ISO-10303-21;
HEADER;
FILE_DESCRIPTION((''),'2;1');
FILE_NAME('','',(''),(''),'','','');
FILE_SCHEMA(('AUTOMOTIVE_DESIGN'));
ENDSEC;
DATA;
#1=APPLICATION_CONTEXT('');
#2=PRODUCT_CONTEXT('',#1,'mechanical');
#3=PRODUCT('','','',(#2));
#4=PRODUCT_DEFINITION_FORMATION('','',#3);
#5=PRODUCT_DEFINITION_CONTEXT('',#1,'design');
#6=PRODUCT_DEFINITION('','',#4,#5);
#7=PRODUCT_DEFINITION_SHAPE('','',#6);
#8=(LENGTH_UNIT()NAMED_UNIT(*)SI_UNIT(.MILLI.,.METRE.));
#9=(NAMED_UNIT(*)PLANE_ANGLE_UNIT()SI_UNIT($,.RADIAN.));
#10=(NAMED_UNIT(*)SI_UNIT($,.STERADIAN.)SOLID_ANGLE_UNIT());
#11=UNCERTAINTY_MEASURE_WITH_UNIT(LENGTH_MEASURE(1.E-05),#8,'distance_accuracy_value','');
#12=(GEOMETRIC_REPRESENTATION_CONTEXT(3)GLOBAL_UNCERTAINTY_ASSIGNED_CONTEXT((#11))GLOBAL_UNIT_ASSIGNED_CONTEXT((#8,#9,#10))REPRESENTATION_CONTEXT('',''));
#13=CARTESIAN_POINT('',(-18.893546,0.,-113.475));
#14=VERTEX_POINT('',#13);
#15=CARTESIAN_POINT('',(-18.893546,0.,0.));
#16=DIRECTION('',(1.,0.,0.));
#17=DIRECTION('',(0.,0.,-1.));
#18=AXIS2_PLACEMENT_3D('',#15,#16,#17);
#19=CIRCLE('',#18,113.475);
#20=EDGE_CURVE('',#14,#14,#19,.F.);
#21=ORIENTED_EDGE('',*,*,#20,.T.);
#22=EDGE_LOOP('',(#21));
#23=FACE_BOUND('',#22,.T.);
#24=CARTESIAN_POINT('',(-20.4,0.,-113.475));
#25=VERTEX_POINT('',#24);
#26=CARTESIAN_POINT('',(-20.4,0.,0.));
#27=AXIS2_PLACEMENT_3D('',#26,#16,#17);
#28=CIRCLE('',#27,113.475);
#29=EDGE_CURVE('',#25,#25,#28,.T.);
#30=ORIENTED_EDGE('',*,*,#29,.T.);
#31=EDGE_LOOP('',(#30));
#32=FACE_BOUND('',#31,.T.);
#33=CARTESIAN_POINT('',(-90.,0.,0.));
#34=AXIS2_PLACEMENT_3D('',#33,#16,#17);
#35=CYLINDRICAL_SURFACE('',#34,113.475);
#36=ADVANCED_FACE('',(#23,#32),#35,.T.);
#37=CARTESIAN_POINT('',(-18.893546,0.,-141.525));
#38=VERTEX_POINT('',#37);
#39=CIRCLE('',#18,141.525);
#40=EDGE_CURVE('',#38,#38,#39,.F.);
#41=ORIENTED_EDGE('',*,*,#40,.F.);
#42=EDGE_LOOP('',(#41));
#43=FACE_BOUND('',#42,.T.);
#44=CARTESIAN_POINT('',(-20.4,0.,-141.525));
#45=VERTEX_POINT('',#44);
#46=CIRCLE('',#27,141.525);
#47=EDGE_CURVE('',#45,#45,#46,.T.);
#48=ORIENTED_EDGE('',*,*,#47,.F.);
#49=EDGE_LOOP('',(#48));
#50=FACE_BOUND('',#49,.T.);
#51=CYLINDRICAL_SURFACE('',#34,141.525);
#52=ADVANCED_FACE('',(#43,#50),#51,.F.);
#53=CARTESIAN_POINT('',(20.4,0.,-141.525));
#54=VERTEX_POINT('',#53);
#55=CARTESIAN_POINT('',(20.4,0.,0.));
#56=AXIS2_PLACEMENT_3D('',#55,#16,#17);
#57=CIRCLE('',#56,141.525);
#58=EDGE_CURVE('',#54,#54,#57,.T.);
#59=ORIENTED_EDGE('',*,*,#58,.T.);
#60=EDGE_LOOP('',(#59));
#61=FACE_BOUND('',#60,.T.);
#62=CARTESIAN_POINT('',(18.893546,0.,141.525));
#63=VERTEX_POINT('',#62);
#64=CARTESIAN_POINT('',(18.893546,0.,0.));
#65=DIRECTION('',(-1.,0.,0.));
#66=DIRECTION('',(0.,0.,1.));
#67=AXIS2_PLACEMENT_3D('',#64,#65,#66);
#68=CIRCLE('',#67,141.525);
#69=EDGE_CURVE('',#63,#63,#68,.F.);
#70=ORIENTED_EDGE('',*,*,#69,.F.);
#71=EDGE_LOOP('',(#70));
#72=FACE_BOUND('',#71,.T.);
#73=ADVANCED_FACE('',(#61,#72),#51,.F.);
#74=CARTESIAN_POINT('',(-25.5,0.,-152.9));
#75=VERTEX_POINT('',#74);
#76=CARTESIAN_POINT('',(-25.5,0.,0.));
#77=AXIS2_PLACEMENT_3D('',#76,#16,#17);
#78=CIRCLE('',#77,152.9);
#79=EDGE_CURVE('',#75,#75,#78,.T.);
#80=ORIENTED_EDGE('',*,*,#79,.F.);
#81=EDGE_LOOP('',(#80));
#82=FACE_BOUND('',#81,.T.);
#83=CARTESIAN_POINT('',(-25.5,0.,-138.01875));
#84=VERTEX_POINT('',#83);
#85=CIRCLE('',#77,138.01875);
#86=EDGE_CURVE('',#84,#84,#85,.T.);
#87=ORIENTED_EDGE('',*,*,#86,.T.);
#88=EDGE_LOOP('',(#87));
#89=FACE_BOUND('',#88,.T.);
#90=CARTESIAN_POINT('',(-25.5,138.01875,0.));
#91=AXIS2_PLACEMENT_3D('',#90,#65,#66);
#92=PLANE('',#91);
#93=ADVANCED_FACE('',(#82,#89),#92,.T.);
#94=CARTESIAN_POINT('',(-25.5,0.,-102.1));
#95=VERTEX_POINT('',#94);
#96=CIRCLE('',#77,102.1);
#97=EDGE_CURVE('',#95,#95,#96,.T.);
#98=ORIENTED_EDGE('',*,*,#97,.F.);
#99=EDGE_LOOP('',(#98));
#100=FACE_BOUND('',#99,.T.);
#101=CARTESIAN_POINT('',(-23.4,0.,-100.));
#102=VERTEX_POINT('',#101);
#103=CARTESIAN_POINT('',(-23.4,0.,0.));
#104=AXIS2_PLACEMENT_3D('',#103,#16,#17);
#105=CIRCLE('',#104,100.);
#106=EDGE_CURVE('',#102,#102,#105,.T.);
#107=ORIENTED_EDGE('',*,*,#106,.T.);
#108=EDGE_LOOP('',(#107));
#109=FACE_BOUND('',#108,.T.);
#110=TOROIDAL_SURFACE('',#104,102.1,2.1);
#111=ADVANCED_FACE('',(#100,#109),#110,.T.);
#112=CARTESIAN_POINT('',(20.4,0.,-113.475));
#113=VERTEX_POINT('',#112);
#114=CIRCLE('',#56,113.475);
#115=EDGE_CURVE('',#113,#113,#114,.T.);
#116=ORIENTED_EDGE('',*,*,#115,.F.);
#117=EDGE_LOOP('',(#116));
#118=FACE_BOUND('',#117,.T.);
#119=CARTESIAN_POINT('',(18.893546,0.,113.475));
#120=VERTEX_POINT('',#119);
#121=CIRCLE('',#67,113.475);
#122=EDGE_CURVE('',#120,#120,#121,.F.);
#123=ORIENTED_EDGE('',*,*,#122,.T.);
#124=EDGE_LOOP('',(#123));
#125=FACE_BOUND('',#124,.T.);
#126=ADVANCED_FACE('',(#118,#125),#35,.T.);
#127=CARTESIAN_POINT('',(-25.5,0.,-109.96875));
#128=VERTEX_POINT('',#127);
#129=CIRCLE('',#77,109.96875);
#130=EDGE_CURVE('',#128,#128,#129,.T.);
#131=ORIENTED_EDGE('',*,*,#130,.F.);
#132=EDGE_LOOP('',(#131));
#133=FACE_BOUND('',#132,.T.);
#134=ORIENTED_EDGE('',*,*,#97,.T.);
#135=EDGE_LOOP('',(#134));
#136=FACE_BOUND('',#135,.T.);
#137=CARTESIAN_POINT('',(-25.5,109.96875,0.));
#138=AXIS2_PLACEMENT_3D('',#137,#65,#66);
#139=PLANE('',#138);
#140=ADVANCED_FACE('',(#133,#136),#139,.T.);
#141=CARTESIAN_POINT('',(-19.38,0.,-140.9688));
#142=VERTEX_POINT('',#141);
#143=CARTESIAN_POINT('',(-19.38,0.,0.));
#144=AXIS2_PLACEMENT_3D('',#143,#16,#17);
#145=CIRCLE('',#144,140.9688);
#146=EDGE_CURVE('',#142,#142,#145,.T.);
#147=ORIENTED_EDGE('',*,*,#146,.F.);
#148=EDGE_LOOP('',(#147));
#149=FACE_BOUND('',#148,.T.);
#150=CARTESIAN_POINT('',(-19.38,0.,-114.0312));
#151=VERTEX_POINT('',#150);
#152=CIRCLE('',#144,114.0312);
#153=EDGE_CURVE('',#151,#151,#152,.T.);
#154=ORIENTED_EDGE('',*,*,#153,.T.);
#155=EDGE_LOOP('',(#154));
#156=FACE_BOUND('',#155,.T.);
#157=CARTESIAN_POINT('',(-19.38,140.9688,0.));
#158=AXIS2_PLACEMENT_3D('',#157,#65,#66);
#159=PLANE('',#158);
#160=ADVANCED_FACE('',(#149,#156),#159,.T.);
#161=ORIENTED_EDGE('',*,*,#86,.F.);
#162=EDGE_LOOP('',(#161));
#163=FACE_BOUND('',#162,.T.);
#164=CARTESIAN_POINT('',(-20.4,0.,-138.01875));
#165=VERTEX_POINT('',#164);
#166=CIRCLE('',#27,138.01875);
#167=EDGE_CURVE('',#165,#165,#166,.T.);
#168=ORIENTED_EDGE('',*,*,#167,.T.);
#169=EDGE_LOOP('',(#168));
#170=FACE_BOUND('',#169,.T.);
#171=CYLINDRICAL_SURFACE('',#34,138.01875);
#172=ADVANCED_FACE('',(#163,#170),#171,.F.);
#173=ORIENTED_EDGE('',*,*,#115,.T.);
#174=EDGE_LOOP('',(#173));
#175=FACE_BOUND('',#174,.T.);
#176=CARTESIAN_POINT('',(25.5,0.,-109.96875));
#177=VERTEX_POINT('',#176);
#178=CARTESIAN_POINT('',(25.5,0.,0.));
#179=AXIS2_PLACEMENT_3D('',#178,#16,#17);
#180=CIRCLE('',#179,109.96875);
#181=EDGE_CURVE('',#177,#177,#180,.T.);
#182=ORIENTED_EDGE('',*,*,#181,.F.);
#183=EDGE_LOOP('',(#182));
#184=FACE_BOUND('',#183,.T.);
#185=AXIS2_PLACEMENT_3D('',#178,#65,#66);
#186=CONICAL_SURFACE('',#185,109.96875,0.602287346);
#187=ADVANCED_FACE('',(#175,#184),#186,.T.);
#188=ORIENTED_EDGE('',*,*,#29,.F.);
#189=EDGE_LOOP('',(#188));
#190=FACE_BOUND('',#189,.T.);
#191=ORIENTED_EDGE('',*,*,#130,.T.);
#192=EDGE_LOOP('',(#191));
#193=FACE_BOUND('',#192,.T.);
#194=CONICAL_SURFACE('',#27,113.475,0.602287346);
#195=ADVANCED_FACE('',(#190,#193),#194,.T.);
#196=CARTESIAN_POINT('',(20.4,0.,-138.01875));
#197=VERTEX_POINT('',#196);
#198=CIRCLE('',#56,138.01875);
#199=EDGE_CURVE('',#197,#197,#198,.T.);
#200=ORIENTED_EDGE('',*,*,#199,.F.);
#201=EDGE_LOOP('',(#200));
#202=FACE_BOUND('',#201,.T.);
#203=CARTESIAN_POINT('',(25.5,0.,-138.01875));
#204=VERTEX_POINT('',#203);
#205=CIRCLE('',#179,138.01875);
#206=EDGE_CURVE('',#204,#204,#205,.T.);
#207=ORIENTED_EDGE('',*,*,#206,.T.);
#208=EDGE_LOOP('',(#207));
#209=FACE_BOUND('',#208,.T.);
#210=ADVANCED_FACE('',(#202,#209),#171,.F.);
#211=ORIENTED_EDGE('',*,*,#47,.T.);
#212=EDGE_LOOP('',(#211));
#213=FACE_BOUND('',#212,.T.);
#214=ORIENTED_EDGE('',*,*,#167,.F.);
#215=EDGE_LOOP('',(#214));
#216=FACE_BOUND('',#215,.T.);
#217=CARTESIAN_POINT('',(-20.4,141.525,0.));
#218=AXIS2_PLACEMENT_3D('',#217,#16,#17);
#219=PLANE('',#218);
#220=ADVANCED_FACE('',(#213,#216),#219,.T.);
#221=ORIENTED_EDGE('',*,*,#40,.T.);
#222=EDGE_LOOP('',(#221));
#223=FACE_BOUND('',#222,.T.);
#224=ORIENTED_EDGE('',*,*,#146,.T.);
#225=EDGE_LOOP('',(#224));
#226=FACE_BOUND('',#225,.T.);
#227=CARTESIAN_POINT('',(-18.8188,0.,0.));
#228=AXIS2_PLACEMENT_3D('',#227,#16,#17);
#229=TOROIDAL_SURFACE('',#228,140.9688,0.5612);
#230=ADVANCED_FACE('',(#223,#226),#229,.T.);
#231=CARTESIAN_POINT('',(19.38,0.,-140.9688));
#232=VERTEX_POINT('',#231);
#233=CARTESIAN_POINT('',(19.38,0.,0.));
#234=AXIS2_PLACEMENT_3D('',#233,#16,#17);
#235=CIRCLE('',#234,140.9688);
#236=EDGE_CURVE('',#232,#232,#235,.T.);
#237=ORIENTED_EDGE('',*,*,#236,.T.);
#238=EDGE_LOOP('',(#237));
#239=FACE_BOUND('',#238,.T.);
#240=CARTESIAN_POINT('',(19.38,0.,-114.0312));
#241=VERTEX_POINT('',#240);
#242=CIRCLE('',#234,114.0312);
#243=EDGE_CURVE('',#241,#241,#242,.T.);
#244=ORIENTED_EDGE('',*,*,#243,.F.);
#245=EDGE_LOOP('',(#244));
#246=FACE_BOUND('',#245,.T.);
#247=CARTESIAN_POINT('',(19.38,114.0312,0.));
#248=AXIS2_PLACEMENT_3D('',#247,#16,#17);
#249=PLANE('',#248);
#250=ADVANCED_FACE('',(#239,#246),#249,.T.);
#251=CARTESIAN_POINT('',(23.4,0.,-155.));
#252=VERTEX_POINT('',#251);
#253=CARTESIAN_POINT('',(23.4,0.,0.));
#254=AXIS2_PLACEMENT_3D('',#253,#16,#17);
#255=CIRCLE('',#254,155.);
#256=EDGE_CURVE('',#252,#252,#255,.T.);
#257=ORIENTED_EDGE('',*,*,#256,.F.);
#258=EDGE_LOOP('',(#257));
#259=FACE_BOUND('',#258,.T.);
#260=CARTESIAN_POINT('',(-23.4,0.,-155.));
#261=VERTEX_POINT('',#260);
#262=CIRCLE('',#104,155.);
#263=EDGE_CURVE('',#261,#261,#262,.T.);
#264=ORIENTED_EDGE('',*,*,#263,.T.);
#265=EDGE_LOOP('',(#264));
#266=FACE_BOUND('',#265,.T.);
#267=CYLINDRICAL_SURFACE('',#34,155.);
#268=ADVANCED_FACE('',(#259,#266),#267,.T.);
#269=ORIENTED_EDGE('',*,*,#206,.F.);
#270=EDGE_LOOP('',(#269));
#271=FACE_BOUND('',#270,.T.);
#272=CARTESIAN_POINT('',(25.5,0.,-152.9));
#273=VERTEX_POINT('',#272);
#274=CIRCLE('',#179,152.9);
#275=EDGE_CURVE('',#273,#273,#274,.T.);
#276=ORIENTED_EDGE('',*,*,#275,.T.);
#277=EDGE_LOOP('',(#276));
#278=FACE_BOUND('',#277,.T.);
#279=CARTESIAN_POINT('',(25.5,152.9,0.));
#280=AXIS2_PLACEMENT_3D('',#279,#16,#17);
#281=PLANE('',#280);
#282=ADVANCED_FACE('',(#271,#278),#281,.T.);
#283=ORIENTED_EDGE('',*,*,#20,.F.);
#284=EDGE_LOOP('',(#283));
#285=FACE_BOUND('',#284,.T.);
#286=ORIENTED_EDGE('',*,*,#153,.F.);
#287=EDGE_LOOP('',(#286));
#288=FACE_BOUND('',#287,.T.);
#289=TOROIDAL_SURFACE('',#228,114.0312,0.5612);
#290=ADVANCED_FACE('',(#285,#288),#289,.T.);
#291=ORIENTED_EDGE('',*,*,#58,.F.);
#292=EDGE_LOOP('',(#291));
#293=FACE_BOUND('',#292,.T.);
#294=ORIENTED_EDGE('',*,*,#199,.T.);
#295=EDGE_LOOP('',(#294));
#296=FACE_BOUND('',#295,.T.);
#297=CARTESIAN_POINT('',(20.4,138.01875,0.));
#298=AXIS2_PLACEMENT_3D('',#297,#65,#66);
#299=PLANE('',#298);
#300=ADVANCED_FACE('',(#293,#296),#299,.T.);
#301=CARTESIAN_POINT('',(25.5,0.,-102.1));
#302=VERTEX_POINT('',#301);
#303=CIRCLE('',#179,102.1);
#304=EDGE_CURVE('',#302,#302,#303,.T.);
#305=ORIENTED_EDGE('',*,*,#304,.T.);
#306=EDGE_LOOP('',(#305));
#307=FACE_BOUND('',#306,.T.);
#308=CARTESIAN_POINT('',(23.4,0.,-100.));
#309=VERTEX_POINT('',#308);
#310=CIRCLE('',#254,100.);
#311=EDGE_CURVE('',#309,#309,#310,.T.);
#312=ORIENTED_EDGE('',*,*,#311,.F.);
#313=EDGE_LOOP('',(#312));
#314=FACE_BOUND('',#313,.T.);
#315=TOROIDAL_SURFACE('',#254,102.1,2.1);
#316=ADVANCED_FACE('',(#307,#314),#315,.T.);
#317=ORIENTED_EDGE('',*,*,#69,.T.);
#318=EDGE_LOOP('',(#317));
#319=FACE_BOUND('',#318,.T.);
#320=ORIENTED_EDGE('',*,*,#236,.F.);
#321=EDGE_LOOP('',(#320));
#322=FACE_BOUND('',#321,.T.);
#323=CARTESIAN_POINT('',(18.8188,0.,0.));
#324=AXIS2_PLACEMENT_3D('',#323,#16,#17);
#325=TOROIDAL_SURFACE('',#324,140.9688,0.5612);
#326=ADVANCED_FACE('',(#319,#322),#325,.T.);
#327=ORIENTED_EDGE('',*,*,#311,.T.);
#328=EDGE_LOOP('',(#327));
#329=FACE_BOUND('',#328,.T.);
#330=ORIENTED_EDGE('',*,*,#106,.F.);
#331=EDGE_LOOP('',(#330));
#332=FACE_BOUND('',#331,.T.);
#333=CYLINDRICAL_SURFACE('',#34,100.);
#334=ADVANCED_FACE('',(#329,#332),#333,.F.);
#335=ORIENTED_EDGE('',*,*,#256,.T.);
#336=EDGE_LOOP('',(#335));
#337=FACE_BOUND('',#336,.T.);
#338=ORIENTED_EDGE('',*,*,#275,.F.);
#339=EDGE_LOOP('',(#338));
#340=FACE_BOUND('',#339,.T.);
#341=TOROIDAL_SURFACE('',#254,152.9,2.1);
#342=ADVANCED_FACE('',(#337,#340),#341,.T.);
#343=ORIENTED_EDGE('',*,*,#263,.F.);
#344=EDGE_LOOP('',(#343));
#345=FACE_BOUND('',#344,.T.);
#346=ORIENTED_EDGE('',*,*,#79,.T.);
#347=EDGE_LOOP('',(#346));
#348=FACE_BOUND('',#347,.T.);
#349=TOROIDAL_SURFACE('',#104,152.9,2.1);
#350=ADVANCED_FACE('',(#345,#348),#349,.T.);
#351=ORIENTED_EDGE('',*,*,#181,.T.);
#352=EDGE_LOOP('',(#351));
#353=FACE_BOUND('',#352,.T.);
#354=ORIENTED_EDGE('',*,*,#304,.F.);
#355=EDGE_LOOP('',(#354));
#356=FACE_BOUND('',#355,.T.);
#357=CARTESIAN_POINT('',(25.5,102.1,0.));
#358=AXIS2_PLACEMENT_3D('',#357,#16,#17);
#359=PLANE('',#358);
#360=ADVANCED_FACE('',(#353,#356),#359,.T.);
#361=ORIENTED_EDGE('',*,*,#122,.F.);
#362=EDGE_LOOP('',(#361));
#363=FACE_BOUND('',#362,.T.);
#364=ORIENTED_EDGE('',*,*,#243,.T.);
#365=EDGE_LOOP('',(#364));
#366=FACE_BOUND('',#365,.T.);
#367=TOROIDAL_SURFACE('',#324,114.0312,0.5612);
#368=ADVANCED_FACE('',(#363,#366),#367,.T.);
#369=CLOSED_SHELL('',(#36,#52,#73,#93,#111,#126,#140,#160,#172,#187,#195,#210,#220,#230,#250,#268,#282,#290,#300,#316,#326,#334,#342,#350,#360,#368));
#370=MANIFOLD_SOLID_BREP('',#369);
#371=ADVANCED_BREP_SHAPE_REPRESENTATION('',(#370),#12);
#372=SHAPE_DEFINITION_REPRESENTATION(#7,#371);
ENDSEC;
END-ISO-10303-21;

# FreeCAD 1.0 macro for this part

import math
import FreeCAD as App
import Part
import Sketcher
from FreeCAD import Vector

doc = App.newDocument("Part")
params = doc.addObject("Spreadsheet::Sheet", "Params")
for row, (alias, value) in enumerate([
    ("sketch1_radius", "2.1 mm"),
    ("sketch1_width", "5.1 mm"),
    ("sketch1_width2", "40.8 mm"),
    ("revolution_angle", "360 deg"),
    ("revolution2_angle", "360 deg"),
    ("sketch3_radius", "2.1 mm"),
    ("sketch3_width", "46.8 mm"),
    ("sketch3_width2", "40.8 mm"),
    ("revolution3_angle", "360 deg"),
], start=1):
    params.set(f"A{row}", alias)
    params.set(f"B{row}", "=" + value)
    params.setAlias(f"B{row}", alias)

body = doc.addObject("PartDesign::Body", "Body")

# Sketch on XY plane
sketch1 = doc.addObject("Sketcher::SketchObject", "Sketch")
body.addObject(sketch1)
sketch1.AttachmentSupport = (doc.XY_Plane, [""])
sketch1.MapMode = "FlatFace"
sketch1.addGeometry(Part.LineSegment(Vector(-25.5, 138, 0), Vector(-20.4, 138, 0)), False)
sketch1.addGeometry(Part.LineSegment(Vector(-20.4, 138, 0), Vector(-20.4, 141.5, 0)), False)
sketch1.addGeometry(Part.LineSegment(Vector(-20.4, 141.5, 0), Vector(20.4, 141.5, 0)), False)
sketch1.addGeometry(Part.LineSegment(Vector(20.4, 141.5, 0), Vector(20.4, 138, 0)), False)
sketch1.addGeometry(Part.LineSegment(Vector(20.4, 138, 0), Vector(25.5, 138, 0)), False)
sketch1.addGeometry(Part.LineSegment(Vector(25.5, 138, 0), Vector(25.5, 152.9, 0)), False)
sketch1.addGeometry(Part.ArcOfCircle(Part.Circle(Vector(23.4, 152.9, 0), Vector(0, 0, 1), 2.1), math.radians(0), math.radians(90)), False)
sketch1.addGeometry(Part.LineSegment(Vector(23.4, 155, 0), Vector(-23.4, 155, 0)), False)
sketch1.addGeometry(Part.ArcOfCircle(Part.Circle(Vector(-23.4, 152.9, 0), Vector(0, 0, 1), 2.1), math.radians(90), math.radians(180)), False)
sketch1.addGeometry(Part.LineSegment(Vector(-25.5, 152.9, 0), Vector(-25.5, 138, 0)), False)
sketch1.addConstraint(Sketcher.Constraint("Coincident", 0, 2, 1, 1))
sketch1.addConstraint(Sketcher.Constraint("Coincident", 1, 2, 2, 1))
sketch1.addConstraint(Sketcher.Constraint("Coincident", 2, 2, 3, 1))
sketch1.addConstraint(Sketcher.Constraint("Coincident", 3, 2, 4, 1))
sketch1.addConstraint(Sketcher.Constraint("Coincident", 4, 2, 5, 1))
sketch1.addConstraint(Sketcher.Constraint("Tangent", 5, 2, 6, 1))
sketch1.addConstraint(Sketcher.Constraint("Tangent", 6, 2, 7, 1))
sketch1.addConstraint(Sketcher.Constraint("Tangent", 7, 2, 8, 1))
sketch1.addConstraint(Sketcher.Constraint("Tangent", 8, 2, 9, 1))
sketch1.addConstraint(Sketcher.Constraint("Coincident", 9, 2, 0, 1))
sketch1.addConstraint(Sketcher.Constraint("Horizontal", 0))
sketch1.addConstraint(Sketcher.Constraint("Vertical", 1))
sketch1.addConstraint(Sketcher.Constraint("Horizontal", 2))
sketch1.addConstraint(Sketcher.Constraint("Vertical", 3))
sketch1.addConstraint(Sketcher.Constraint("Horizontal", 4))
sketch1.addConstraint(Sketcher.Constraint("Vertical", 5))
sketch1.addConstraint(Sketcher.Constraint("Horizontal", 7))
sketch1.addConstraint(Sketcher.Constraint("Vertical", 9))
sketch1.addConstraint(Sketcher.Constraint("Equal", 6, 8))
sketch1.addConstraint(Sketcher.Constraint("Symmetric", 0, 2, 3, 2, -2))
sketch1.addConstraint(Sketcher.Constraint("Equal", 0, 4))
sketch1.addConstraint(Sketcher.Constraint("Radius", 6, 2.1))
sketch1.addConstraint(Sketcher.Constraint("DistanceX", 0, 1, 0, 2, 5.1))
sketch1.addConstraint(Sketcher.Constraint("DistanceX", 2, 1, 2, 2, 40.8))
sketch1.addConstraint(Sketcher.Constraint("DistanceY", -1, 1, 6, 2, 155.0))
sketch1.addConstraint(Sketcher.Constraint("DistanceY", -1, 1, 1, 2, 141.525))
sketch1.addConstraint(Sketcher.Constraint("DistanceY", 1, 1, 1, 2, 3.50625))
sketch1.setExpression("Constraints[21]", "Params.sketch1_radius")
sketch1.setExpression("Constraints[22]", "Params.sketch1_width")
sketch1.setExpression("Constraints[23]", "Params.sketch1_width2")
revolution = doc.addObject("PartDesign::Revolution", "Revolution")
body.addObject(revolution)
revolution.Profile = sketch1
revolution.ReferenceAxis = (sketch1, ["H_Axis"])
revolution.setExpression("Angle", "Params.revolution_angle")

# Sketch on XY plane
sketch2 = doc.addObject("Sketcher::SketchObject", "Sketch001")
body.addObject(sketch2)
sketch2.AttachmentSupport = (doc.XY_Plane, [""])
sketch2.MapMode = "FlatFace"
sketch2.addGeometry(Part.LineSegment(Vector(-19.4, 141, 0), Vector(-19.4, 114, 0)), False)
sketch2.addGeometry(Part.ArcOfCircle(Part.Circle(Vector(-18.8, 114, 0), Vector(0, 0, 1), 0.6), math.radians(180), math.radians(270)), False)
sketch2.addGeometry(Part.LineSegment(Vector(-18.8, 113.5, 0), Vector(18.8, 113.5, 0)), False)
sketch2.addGeometry(Part.ArcOfCircle(Part.Circle(Vector(18.8, 114, 0), Vector(0, 0, 1), 0.6), math.radians(-90), math.radians(0)), False)
sketch2.addGeometry(Part.LineSegment(Vector(19.4, 114, 0), Vector(19.4, 141, 0)), False)
sketch2.addGeometry(Part.ArcOfCircle(Part.Circle(Vector(18.8, 141, 0), Vector(0, 0, 1), 0.6), math.radians(0), math.radians(90)), False)
sketch2.addGeometry(Part.LineSegment(Vector(18.8, 141.5, 0), Vector(-18.8, 141.5, 0)), False)
sketch2.addGeometry(Part.ArcOfCircle(Part.Circle(Vector(-18.8, 141, 0), Vector(0, 0, 1), 0.6), math.radians(90), math.radians(180)), False)
sketch2.addConstraint(Sketcher.Constraint("Tangent", 0, 2, 1, 1))
sketch2.addConstraint(Sketcher.Constraint("Tangent", 1, 2, 2, 1))
sketch2.addConstraint(Sketcher.Constraint("Tangent", 2, 2, 3, 1))
sketch2.addConstraint(Sketcher.Constraint("Tangent", 3, 2, 4, 1))
sketch2.addConstraint(Sketcher.Constraint("Tangent", 4, 2, 5, 1))
sketch2.addConstraint(Sketcher.Constraint("Tangent", 5, 2, 6, 1))
sketch2.addConstraint(Sketcher.Constraint("Tangent", 6, 2, 7, 1))
sketch2.addConstraint(Sketcher.Constraint("Tangent", 7, 2, 0, 1))
sketch2.addConstraint(Sketcher.Constraint("Vertical", 0))
sketch2.addConstraint(Sketcher.Constraint("Horizontal", 2))
sketch2.addConstraint(Sketcher.Constraint("Vertical", 4))
sketch2.addConstraint(Sketcher.Constraint("Horizontal", 6))
sketch2.addConstraint(Sketcher.Constraint("Equal", 1, 3))
sketch2.addConstraint(Sketcher.Constraint("Equal", 3, 5))
sketch2.addConstraint(Sketcher.Constraint("Equal", 5, 7))
sketch2.addConstraint(Sketcher.Constraint("Radius", 1, 0.5612))
sketch2.addConstraint(Sketcher.Constraint("DistanceX", 0, 2, -1, 1, 19.38))
sketch2.addConstraint(Sketcher.Constraint("DistanceY", -1, 1, 1, 2, 113.47))
sketch2.addConstraint(Sketcher.Constraint("DistanceX", -1, 1, 3, 2, 19.38))
sketch2.addConstraint(Sketcher.Constraint("DistanceY", -1, 1, 5, 2, 141.53))
revolution2 = doc.addObject("PartDesign::Revolution", "Revolution001")
body.addObject(revolution2)
revolution2.Profile = sketch2
revolution2.ReferenceAxis = (sketch2, ["H_Axis"])
revolution2.setExpression("Angle", "Params.revolution2_angle")

# Sketch on XY plane
sketch3 = doc.addObject("Sketcher::SketchObject", "Sketch002")
body.addObject(sketch3)
sketch3.AttachmentSupport = (doc.XY_Plane, [""])
sketch3.MapMode = "FlatFace"
sketch3.addGeometry(Part.LineSegment(Vector(-20.4, 113.5, 0), Vector(-25.5, 110, 0)), False)
sketch3.addGeometry(Part.LineSegment(Vector(-25.5, 110, 0), Vector(-25.5, 102.1, 0)), False)
sketch3.addGeometry(Part.ArcOfCircle(Part.Circle(Vector(-23.4, 102.1, 0), Vector(0, 0, 1), 2.1), math.radians(-180), math.radians(-90)), False)
sketch3.addGeometry(Part.LineSegment(Vector(-23.4, 100, 0), Vector(23.4, 100, 0)), False)
sketch3.addGeometry(Part.ArcOfCircle(Part.Circle(Vector(23.4, 102.1, 0), Vector(0, 0, 1), 2.1), math.radians(-90), math.radians(0)), False)
sketch3.addGeometry(Part.LineSegment(Vector(25.5, 102.1, 0), Vector(25.5, 110, 0)), False)
sketch3.addGeometry(Part.LineSegment(Vector(25.5, 110, 0), Vector(20.4, 113.5, 0)), False)
sketch3.addGeometry(Part.LineSegment(Vector(20.4, 113.5, 0), Vector(-20.4, 113.5, 0)), False)
sketch3.addConstraint(Sketcher.Constraint("Coincident", 0, 2, 1, 1))
sketch3.addConstraint(Sketcher.Constraint("Tangent", 1, 2, 2, 1))
sketch3.addConstraint(Sketcher.Constraint("Tangent", 2, 2, 3, 1))
sketch3.addConstraint(Sketcher.Constraint("Tangent", 3, 2, 4, 1))
sketch3.addConstraint(Sketcher.Constraint("Tangent", 4, 2, 5, 1))
sketch3.addConstraint(Sketcher.Constraint("Coincident", 5, 2, 6, 1))
sketch3.addConstraint(Sketcher.Constraint("Coincident", 6, 2, 7, 1))
sketch3.addConstraint(Sketcher.Constraint("Coincident", 7, 2, 0, 1))
sketch3.addConstraint(Sketcher.Constraint("Vertical", 1))
sketch3.addConstraint(Sketcher.Constraint("Horizontal", 3))
sketch3.addConstraint(Sketcher.Constraint("Vertical", 5))
sketch3.addConstraint(Sketcher.Constraint("Horizontal", 7))
sketch3.addConstraint(Sketcher.Constraint("Equal", 2, 4))
sketch3.addConstraint(Sketcher.Constraint("Symmetric", 0, 2, 5, 2, -2))
sketch3.addConstraint(Sketcher.Constraint("Equal", 0, 6))
sketch3.addConstraint(Sketcher.Constraint("Radius", 2, 2.1))
sketch3.addConstraint(Sketcher.Constraint("DistanceX", 3, 1, 3, 2, 46.8))
sketch3.addConstraint(Sketcher.Constraint("DistanceX", 7, 2, 7, 1, 40.8))
sketch3.addConstraint(Sketcher.Constraint("DistanceY", -1, 1, 2, 2, 100.0))
sketch3.addConstraint(Sketcher.Constraint("DistanceY", -1, 1, 6, 2, 113.475))
sketch3.addConstraint(Sketcher.Constraint("DistanceY", 1, 2, 1, 1, 7.86875))
sketch3.setExpression("Constraints[15]", "Params.sketch3_radius")
sketch3.setExpression("Constraints[16]", "Params.sketch3_width")
sketch3.setExpression("Constraints[17]", "Params.sketch3_width2")
revolution3 = doc.addObject("PartDesign::Revolution", "Revolution002")
body.addObject(revolution3)
revolution3.Profile = sketch3
revolution3.ReferenceAxis = (sketch3, ["H_Axis"])
revolution3.setExpression("Angle", "Params.revolution3_angle")

doc.recompute()
